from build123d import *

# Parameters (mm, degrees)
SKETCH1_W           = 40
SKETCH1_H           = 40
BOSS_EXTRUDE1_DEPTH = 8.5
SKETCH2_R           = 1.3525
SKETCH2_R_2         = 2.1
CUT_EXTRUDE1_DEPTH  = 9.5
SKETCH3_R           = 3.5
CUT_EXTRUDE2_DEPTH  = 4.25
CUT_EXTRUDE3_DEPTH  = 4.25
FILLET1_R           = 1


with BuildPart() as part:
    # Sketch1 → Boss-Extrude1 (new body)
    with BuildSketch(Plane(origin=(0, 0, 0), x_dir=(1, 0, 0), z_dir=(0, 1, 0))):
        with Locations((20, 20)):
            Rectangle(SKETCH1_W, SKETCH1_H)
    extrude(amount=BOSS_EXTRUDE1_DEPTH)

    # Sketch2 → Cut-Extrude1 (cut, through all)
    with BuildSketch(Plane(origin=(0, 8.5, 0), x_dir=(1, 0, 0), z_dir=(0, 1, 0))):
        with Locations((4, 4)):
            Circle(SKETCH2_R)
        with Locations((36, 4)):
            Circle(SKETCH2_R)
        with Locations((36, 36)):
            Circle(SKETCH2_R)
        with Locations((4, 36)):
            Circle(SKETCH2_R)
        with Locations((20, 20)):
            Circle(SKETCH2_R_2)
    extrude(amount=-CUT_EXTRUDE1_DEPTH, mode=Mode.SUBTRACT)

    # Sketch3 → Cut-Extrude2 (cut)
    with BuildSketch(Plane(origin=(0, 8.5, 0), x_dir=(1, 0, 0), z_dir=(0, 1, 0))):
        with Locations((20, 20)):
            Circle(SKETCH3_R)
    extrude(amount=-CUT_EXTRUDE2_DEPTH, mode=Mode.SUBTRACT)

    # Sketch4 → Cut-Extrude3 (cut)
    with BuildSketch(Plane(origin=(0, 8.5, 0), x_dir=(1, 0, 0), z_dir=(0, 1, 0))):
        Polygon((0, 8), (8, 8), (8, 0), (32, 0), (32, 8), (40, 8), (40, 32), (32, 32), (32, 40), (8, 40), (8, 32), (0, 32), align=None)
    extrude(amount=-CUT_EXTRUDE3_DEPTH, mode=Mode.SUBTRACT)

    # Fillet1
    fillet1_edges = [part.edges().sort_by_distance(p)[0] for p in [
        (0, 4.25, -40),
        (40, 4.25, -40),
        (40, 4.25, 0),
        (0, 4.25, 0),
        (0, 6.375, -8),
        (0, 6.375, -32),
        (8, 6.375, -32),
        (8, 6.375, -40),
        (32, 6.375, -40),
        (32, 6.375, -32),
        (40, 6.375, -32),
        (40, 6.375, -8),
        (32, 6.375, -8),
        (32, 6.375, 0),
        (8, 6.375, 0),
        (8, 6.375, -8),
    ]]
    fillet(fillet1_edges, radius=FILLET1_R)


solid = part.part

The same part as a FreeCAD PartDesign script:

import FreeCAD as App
import Part
import Sketcher


def edges_at(feature, points):
    """Names of the edges that pass closest to the given points."""
    edges = feature.Shape.Edges
    near = lambda p: min(range(len(edges)), key=lambda i: edges[i].distToShape(Part.Vertex(*p))[0])
    return sorted({f"Edge{near(p) + 1}" for p in points})

doc = App.newDocument("Part")
body = doc.addObject("PartDesign::Body", "Body")

# Sketch on XZ plane
sketch1 = body.newObject("Sketcher::SketchObject", "Sketch")
sketch1.AttachmentSupport = (doc.getObject("XZ_Plane"), [""])
sketch1.MapMode = "FlatFace"
sketch1.addGeometry([
    Part.LineSegment(App.Vector(0, -40, 0), App.Vector(0, 0, 0)),
    Part.LineSegment(App.Vector(0, 0, 0), App.Vector(40, 0, 0)),
    Part.LineSegment(App.Vector(40, 0, 0), App.Vector(40, -40, 0)),
    Part.LineSegment(App.Vector(40, -40, 0), App.Vector(0, -40, 0)),
], False)
sketch1.addConstraint([
    Sketcher.Constraint("Coincident", 0, 2, 1, 1),
    Sketcher.Constraint("Coincident", 1, 2, 2, 1),
    Sketcher.Constraint("Coincident", 2, 2, 3, 1),
    Sketcher.Constraint("Coincident", 3, 2, 0, 1),
    Sketcher.Constraint("Vertical", 0),
    Sketcher.Constraint("Horizontal", 1),
    Sketcher.Constraint("Vertical", 2),
    Sketcher.Constraint("Horizontal", 3),
    Sketcher.Constraint("Coincident", 0, 2, -1, 1),
    Sketcher.Constraint("Equal", 3, 0),
    Sketcher.Constraint("DistanceX", 1, 1, 1, 2, 40.0),
])
pad1 = body.newObject("PartDesign::Pad", "Pad")
pad1.Profile = sketch1
pad1.Length = 8.5
pad1.Reversed = True

# Sketch on XZ plane
sketch2 = body.newObject("Sketcher::SketchObject", "Sketch001")
sketch2.AttachmentSupport = (doc.getObject("XZ_Plane"), [""])
sketch2.MapMode = "FlatFace"
sketch2.AttachmentOffset = App.Placement(App.Vector(0, 0, -8.5), App.Rotation())
sketch2.addGeometry([
    Part.Circle(App.Vector(4, -4, 0), App.Vector(0, 0, 1), 1.4),  # 0
    Part.Circle(App.Vector(36, -4, 0), App.Vector(0, 0, 1), 1.4),  # 1
    Part.Circle(App.Vector(36, -36, 0), App.Vector(0, 0, 1), 1.4),  # 2
    Part.Circle(App.Vector(4, -36, 0), App.Vector(0, 0, 1), 1.4),  # 3
    Part.Circle(App.Vector(20, -20, 0), App.Vector(0, 0, 1), 2.1),  # 4
], False)
sketch2.addConstraint([
    Sketcher.Constraint("Equal", 0, 1),
    Sketcher.Constraint("Equal", 1, 2),
    Sketcher.Constraint("Equal", 2, 3),
    Sketcher.Constraint("Horizontal", 0, 3, 1, 3),
    Sketcher.Constraint("Horizontal", 2, 3, 3, 3),
    Sketcher.Constraint("Vertical", 1, 3, 2, 3),
    Sketcher.Constraint("Vertical", 0, 3, 3, 3),
    Sketcher.Constraint("Diameter", 4, 4.2),
    Sketcher.Constraint("Diameter", 0, 2.705),
    Sketcher.Constraint("DistanceX", -1, 1, 0, 3, 4.0),
    Sketcher.Constraint("DistanceY", 0, 3, -1, 1, 4.0),
    Sketcher.Constraint("DistanceX", -1, 1, 1, 3, 36.0),
    Sketcher.Constraint("DistanceY", 2, 3, -1, 1, 36.0),
    Sketcher.Constraint("DistanceX", -1, 1, 4, 3, 20.0),
    Sketcher.Constraint("DistanceY", 4, 3, -1, 1, 20.0),
])
pocket1 = body.newObject("PartDesign::Pocket", "Pocket")
pocket1.Profile = sketch2
pocket1.Type = "ThroughAll"
pocket1.Reversed = True

# Sketch on XZ plane
sketch3 = body.newObject("Sketcher::SketchObject", "Sketch002")
sketch3.AttachmentSupport = (doc.getObject("XZ_Plane"), [""])
sketch3.MapMode = "FlatFace"
sketch3.AttachmentOffset = App.Placement(App.Vector(0, 0, -8.5), App.Rotation())
sketch3.addGeometry(Part.Circle(App.Vector(20, -20, 0), App.Vector(0, 0, 1), 3.5), False)
sketch3.addConstraint([
    Sketcher.Constraint("Diameter", 0, 7.0),
    Sketcher.Constraint("DistanceX", -1, 1, 0, 3, 20.0),
    Sketcher.Constraint("DistanceY", 0, 3, -1, 1, 20.0),
])
pocket2 = body.newObject("PartDesign::Pocket", "Pocket001")
pocket2.Profile = sketch3
pocket2.Length = 4.25
pocket2.Reversed = True

# Sketch on XZ plane
sketch4 = body.newObject("Sketcher::SketchObject", "Sketch003")
sketch4.AttachmentSupport = (doc.getObject("XZ_Plane"), [""])
sketch4.MapMode = "FlatFace"
sketch4.AttachmentOffset = App.Placement(App.Vector(0, 0, -8.5), App.Rotation())
sketch4.addGeometry([
    Part.LineSegment(App.Vector(0, -8, 0), App.Vector(8, -8, 0)),  # 0
    Part.LineSegment(App.Vector(8, -8, 0), App.Vector(8, 0, 0)),  # 1
    Part.LineSegment(App.Vector(8, 0, 0), App.Vector(32, 0, 0)),  # 2
    Part.LineSegment(App.Vector(32, 0, 0), App.Vector(32, -8, 0)),  # 3
    Part.LineSegment(App.Vector(32, -8, 0), App.Vector(40, -8, 0)),  # 4
    Part.LineSegment(App.Vector(40, -8, 0), App.Vector(40, -32, 0)),  # 5
    Part.LineSegment(App.Vector(40, -32, 0), App.Vector(32, -32, 0)),  # 6
    Part.LineSegment(App.Vector(32, -32, 0), App.Vector(32, -40, 0)),  # 7
    Part.LineSegment(App.Vector(32, -40, 0), App.Vector(8, -40, 0)),  # 8
    Part.LineSegment(App.Vector(8, -40, 0), App.Vector(8, -32, 0)),  # 9
    Part.LineSegment(App.Vector(8, -32, 0), App.Vector(0, -32, 0)),  # 10
    Part.LineSegment(App.Vector(0, -32, 0), App.Vector(0, -8, 0)),  # 11
], False)
sketch4.addConstraint([
    Sketcher.Constraint("Coincident", 0, 2, 1, 1),
    Sketcher.Constraint("Coincident", 1, 2, 2, 1),
    Sketcher.Constraint("Coincident", 2, 2, 3, 1),
    Sketcher.Constraint("Coincident", 3, 2, 4, 1),
    Sketcher.Constraint("Coincident", 4, 2, 5, 1),
    Sketcher.Constraint("Coincident", 5, 2, 6, 1),
    Sketcher.Constraint("Coincident", 6, 2, 7, 1),
    Sketcher.Constraint("Coincident", 7, 2, 8, 1),
    Sketcher.Constraint("Coincident", 8, 2, 9, 1),
    Sketcher.Constraint("Coincident", 9, 2, 10, 1),
    Sketcher.Constraint("Coincident", 10, 2, 11, 1),
    Sketcher.Constraint("Coincident", 11, 2, 0, 1),
    Sketcher.Constraint("Horizontal", 0),
    Sketcher.Constraint("Vertical", 1),
    Sketcher.Constraint("Horizontal", 2),
    Sketcher.Constraint("Vertical", 3),
    Sketcher.Constraint("Horizontal", 4),
    Sketcher.Constraint("Vertical", 5),
    Sketcher.Constraint("Horizontal", 6),
    Sketcher.Constraint("Vertical", 7),
    Sketcher.Constraint("Horizontal", 8),
    Sketcher.Constraint("Vertical", 9),
    Sketcher.Constraint("Horizontal", 10),
    Sketcher.Constraint("Vertical", 11),
    Sketcher.Constraint("PointOnObject", 1, 2, -1),
    Sketcher.Constraint("PointOnObject", 10, 2, -2),
    Sketcher.Constraint("Horizontal", 0, 2, 3, 2),
    Sketcher.Constraint("Horizontal", 6, 2, 9, 2),
    Sketcher.Constraint("Vertical", 3, 2, 6, 2),
    Sketcher.Constraint("Vertical", 1, 2, 8, 2),
    Sketcher.Constraint("Equal", 0, 4),
    Sketcher.Constraint("Equal", 10, 1),
    Sketcher.Constraint("Equal", 8, 5),
    Sketcher.Constraint("Equal", 3, 7),
    Sketcher.Constraint("DistanceX", 0, 1, 0, 2, 8.0),
    Sketcher.Constraint("DistanceX", 2, 1, 2, 2, 24.0),
])
pocket3 = body.newObject("PartDesign::Pocket", "Pocket002")
pocket3.Profile = sketch4
pocket3.Length = 4.25
pocket3.Reversed = True
doc.recompute()

fillet = body.newObject("PartDesign::Fillet", "Fillet")
fillet.Base = (pocket3, edges_at(pocket3, [
    (0, 4.25, -40),
    (40, 4.25, -40),
    (40, 4.25, 0),
    (0, 4.25, 0),
    (0, 6.375, -8),
    (0, 6.375, -32),
    (8, 6.375, -32),
    (8, 6.375, -40),
    (32, 6.375, -40),
    (32, 6.375, -32),
    (40, 6.375, -32),
    (40, 6.375, -8),
    (32, 6.375, -8),
    (32, 6.375, 0),
    (8, 6.375, 0),
    (8, 6.375, -8),
]))
fillet.Radius = 1

doc.recompute()
